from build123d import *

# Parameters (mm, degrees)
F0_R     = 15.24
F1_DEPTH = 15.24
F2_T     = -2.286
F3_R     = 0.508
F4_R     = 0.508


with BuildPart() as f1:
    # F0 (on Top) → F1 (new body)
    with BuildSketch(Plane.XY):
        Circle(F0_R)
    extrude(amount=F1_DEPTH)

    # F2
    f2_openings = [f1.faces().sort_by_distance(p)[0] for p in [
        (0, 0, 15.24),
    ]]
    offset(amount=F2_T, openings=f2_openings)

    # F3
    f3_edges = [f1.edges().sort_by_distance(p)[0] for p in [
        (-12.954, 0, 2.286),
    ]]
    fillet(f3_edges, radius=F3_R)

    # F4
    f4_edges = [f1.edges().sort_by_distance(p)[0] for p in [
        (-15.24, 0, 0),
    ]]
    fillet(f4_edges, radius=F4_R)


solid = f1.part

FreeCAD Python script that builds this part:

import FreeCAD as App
import Part
import Sketcher
Q = App.Units.Quantity


def edges_at(feature, points):
    """Names of the edges that pass closest to the given points."""
    edges = feature.Shape.Edges
    near = lambda p: min(range(len(edges)), key=lambda i: edges[i].distToShape(Part.Vertex(*p))[0])
    return sorted({f"Edge{near(p) + 1}" for p in points})


def faces_at(feature, points):
    """Names of the faces that lie closest to the given points."""
    faces = feature.Shape.Faces
    near = lambda p: min(range(len(faces)), key=lambda i: faces[i].distToShape(Part.Vertex(*p))[0])
    return sorted({f"Face{near(p) + 1}" for p in points})

doc = App.newDocument("Part")
params = doc.addObject("Spreadsheet::Sheet", "Params")
for row, (alias, value) in enumerate([
    ("sketch1_diameter", "1.2 in"),
    ("pad1_length", "0.6 in"),
    ("thickness_wall", "0.09 in"),
    ("fillet_radius", "0.02 in"),
    ("fillet2_radius", "0.02 in"),
], start=1):
    params.set(f"A{row}", alias)
    params.set(f"B{row}", "=" + value)
    params.setAlias(f"B{row}", alias)

body = doc.addObject("PartDesign::Body", "Body")

# Sketch on XY plane
sketch1 = body.newObject("Sketcher::SketchObject", "Sketch")
sketch1.AttachmentSupport = (doc.getObject("XY_Plane"), [""])
sketch1.MapMode = "FlatFace"
sketch1.addGeometry(Part.Circle(App.Vector(0, 0, 0), App.Vector(0, 0, 1), 15), False)
sketch1.addConstraint([
    Sketcher.Constraint("Coincident", 0, 3, -1, 1),
    Sketcher.Constraint("Diameter", 0, Q("1.2 in")),
])
sketch1.setExpression("Constraints[1]", "Params.sketch1_diameter")
pad1 = body.newObject("PartDesign::Pad", "Pad")
pad1.Profile = sketch1
pad1.setExpression("Length", "Params.pad1_length")
doc.recompute()

thickness = body.newObject("PartDesign::Thickness", "Thickness")
thickness.Base = (pad1, faces_at(pad1, [(0, 0, 15.24)]))
thickness.setExpression("Value", "Params.thickness_wall")
thickness.Reversed = True
thickness.Join = "Arc"
doc.recompute()

fillet = body.newObject("PartDesign::Fillet", "Fillet")
fillet.Base = (thickness, edges_at(thickness, [(-12.954, 0, 2.286)]))
fillet.setExpression("Radius", "Params.fillet_radius")
doc.recompute()

fillet2 = body.newObject("PartDesign::Fillet", "Fillet001")
fillet2.Base = (fillet, edges_at(fillet, [(-15.24, 0, 0)]))
fillet2.setExpression("Radius", "Params.fillet2_radius")

doc.recompute()
